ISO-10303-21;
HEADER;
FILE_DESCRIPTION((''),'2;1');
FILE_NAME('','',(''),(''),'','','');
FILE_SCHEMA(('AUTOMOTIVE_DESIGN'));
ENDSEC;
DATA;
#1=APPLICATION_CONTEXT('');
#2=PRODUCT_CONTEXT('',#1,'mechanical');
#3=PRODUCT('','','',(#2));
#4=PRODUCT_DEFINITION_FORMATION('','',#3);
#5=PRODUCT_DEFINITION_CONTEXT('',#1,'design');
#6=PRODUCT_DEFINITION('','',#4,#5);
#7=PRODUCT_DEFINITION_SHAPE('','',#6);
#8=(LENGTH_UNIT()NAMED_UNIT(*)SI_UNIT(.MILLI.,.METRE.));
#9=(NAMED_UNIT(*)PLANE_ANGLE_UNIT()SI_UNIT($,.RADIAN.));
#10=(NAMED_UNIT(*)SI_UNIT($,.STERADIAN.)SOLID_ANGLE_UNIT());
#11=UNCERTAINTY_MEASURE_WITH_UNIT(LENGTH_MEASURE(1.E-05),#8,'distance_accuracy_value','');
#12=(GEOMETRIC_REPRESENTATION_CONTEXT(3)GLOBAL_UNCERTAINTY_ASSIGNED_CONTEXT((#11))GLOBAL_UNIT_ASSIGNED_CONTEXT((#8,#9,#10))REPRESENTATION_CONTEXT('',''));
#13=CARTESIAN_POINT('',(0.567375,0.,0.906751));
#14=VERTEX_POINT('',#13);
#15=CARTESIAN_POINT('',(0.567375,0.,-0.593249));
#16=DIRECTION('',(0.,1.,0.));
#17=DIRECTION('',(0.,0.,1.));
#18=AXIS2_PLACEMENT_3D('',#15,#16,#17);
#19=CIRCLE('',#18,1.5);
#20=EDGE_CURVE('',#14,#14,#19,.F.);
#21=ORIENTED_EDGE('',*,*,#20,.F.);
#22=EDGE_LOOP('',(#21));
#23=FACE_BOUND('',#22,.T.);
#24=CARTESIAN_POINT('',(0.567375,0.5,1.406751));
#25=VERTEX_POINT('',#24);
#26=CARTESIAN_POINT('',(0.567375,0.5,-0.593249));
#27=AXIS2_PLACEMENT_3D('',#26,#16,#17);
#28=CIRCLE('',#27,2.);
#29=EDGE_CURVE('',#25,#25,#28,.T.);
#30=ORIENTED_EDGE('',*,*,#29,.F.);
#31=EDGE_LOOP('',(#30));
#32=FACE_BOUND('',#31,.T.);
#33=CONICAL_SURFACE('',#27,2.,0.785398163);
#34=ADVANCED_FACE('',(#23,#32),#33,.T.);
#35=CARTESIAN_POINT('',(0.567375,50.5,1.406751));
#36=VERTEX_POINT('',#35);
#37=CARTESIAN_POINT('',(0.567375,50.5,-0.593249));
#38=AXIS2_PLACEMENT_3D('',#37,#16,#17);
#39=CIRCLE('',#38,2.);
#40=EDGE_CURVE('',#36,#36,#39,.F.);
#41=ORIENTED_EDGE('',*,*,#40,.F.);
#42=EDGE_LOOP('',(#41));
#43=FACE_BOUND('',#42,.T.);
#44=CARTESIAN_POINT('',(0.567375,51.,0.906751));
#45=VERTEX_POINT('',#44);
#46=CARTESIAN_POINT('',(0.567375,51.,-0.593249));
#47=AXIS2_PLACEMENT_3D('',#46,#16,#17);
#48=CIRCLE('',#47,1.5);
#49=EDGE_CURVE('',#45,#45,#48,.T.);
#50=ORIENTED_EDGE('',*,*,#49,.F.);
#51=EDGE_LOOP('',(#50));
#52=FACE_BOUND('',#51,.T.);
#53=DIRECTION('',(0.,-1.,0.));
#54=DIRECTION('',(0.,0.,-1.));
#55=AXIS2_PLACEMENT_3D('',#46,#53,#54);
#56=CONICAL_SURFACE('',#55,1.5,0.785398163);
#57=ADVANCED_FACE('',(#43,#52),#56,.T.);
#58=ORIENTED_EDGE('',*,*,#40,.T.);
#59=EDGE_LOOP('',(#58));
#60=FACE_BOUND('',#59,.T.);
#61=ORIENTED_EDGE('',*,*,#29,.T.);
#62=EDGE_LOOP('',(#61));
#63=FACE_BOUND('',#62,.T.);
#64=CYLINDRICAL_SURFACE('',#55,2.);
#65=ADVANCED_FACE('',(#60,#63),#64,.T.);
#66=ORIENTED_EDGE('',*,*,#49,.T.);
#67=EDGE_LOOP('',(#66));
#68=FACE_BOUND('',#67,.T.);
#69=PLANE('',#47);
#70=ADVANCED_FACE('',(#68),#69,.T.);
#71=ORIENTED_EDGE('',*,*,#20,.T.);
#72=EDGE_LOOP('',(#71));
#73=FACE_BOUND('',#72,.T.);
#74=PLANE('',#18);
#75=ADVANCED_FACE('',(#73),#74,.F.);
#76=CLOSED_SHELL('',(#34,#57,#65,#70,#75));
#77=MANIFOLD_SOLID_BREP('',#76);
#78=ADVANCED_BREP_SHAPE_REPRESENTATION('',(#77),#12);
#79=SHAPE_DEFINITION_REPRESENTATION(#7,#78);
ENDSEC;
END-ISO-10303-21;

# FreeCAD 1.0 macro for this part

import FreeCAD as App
import Part
import Sketcher

V = App.Vector
Q = App.Units.Quantity


def edges_at(feature, points):
    """Names of the edges that pass closest to the given points."""
    edges = feature.Shape.Edges
    near = lambda p: min(range(len(edges)), key=lambda i: edges[i].distToShape(Part.Vertex(*p))[0])
    return sorted({f"Edge{near(p) + 1}" for p in points})

doc = App.newDocument("Part")
body = doc.addObject("PartDesign::Body", "Body")

sketch1 = body.newObject("Sketcher::SketchObject", "Sketch")
sketch1.AttachmentSupport = (doc.getObject("XZ_Plane"), [""])
sketch1.MapMode = "FlatFace"
sketch1.addGeometry(Part.Circle(V(0.6, -0.6, 0), V(0, 0, 1), 2), False)
sketch1.addConstraint(Sketcher.Constraint("Diameter", 0, Q("4 mm")))
sketch1.addConstraint(Sketcher.Constraint("DistanceY", 0, 3, -1, 1, Q("0.593249 mm")))
sketch1.addConstraint(Sketcher.Constraint("DistanceX", -1, 1, 0, 3, Q("0.567375 mm")))
pad1 = body.newObject("PartDesign::Pad", "Pad")
pad1.Profile = sketch1
pad1.Length = 51
pad1.Reversed = True
doc.recompute()

chamfer = body.newObject("PartDesign::Chamfer", "Chamfer")
chamfer.Base = (pad1, edges_at(pad1, [(0.567, 0, -2.593), (0.567, 51, -2.593)]))
chamfer.Size = 0.5

doc.recompute()
